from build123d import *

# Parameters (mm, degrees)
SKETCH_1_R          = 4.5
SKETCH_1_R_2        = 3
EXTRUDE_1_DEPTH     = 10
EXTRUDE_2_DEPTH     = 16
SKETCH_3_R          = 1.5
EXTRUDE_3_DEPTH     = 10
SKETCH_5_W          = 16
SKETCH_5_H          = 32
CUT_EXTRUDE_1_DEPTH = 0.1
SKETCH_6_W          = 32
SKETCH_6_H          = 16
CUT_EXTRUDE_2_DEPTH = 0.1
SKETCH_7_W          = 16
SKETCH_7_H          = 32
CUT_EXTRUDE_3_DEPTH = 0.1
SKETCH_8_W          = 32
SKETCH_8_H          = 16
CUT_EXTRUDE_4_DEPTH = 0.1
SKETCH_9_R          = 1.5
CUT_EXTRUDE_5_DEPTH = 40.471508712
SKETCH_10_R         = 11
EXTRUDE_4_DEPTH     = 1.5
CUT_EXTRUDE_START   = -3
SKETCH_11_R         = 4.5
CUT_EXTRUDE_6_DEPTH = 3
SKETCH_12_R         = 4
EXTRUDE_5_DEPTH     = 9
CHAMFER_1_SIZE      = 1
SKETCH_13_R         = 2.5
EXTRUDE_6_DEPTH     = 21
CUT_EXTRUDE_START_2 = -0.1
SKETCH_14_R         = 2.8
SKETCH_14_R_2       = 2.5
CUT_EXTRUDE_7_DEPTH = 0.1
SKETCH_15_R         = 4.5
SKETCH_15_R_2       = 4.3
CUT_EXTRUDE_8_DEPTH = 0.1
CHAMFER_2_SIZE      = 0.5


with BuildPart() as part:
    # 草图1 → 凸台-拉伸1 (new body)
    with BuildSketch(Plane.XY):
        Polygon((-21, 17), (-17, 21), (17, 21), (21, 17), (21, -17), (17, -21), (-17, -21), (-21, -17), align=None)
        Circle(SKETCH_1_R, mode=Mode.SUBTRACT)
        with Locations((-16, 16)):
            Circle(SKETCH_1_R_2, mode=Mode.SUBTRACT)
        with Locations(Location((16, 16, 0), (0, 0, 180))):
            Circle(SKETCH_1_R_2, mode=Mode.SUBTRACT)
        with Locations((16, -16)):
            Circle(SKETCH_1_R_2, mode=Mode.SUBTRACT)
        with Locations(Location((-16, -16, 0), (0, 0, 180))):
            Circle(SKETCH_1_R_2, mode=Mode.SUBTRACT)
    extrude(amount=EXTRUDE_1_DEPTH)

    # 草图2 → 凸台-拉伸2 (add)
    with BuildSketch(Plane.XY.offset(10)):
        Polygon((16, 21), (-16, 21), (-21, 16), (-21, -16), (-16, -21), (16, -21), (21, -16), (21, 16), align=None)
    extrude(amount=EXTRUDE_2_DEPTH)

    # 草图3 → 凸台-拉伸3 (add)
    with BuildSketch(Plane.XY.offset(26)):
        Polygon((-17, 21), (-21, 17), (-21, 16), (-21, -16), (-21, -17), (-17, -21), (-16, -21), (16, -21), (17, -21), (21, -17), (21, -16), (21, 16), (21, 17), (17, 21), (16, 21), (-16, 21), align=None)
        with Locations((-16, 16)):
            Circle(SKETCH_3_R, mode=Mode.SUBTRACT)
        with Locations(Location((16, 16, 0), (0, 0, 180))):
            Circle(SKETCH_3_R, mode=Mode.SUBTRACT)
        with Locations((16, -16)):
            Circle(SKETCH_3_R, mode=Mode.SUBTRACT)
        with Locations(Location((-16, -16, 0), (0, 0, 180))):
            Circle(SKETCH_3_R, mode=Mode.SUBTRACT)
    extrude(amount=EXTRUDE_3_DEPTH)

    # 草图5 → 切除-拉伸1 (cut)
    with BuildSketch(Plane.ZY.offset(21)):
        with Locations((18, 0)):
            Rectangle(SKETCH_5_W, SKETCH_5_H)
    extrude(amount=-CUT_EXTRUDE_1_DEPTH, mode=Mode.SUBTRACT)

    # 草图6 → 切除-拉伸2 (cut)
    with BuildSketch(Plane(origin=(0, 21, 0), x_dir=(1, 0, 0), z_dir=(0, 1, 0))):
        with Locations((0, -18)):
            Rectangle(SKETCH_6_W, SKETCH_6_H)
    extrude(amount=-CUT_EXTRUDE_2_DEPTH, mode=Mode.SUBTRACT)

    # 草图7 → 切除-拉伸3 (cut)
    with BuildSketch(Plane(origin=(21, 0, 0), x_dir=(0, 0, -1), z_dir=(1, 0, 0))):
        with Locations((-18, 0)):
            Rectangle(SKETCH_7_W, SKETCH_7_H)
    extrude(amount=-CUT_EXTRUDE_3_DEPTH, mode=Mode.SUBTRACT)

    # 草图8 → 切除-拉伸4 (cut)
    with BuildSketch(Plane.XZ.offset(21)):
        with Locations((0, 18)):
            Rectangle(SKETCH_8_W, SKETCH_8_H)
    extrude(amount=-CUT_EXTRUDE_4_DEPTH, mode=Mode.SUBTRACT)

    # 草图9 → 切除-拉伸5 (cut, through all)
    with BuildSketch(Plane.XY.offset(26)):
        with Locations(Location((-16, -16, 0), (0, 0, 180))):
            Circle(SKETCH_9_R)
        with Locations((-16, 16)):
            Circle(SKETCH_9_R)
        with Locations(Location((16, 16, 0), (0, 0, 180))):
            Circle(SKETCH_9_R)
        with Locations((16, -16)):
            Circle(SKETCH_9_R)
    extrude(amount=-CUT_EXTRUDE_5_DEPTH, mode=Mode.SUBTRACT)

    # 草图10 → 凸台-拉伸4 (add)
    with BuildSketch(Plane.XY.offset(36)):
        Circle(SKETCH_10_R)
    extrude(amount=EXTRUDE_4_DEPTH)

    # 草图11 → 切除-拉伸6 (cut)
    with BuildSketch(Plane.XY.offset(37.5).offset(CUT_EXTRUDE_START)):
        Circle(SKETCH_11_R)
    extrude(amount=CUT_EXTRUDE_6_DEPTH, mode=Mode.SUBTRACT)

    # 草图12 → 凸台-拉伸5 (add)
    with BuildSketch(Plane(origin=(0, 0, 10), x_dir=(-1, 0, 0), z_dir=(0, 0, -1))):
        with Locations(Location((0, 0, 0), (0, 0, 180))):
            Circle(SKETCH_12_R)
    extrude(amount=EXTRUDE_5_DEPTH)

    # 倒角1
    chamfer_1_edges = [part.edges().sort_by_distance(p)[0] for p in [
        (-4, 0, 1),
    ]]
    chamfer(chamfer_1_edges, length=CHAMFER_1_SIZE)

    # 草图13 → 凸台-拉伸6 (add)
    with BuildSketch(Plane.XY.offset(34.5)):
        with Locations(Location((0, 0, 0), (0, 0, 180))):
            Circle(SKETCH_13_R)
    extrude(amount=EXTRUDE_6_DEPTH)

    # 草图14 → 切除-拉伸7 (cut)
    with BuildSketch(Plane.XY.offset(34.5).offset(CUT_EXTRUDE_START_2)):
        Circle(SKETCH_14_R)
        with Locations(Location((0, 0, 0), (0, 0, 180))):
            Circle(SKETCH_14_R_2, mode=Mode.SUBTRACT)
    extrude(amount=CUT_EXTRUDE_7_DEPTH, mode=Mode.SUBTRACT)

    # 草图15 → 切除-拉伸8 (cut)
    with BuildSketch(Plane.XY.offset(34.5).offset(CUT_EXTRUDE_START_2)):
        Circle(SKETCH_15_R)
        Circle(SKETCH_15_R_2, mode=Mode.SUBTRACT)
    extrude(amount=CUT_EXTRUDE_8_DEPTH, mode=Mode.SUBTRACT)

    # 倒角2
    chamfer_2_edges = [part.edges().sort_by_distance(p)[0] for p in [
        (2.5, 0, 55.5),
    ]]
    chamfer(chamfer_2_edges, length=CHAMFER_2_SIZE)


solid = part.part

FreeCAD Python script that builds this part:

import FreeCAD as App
import Part
import Sketcher


def edges_at(feature, points):
    """Names of the edges that pass closest to the given points."""
    edges = feature.Shape.Edges
    near = lambda p: min(range(len(edges)), key=lambda i: edges[i].distToShape(Part.Vertex(*p))[0])
    return sorted({f"Edge{near(p) + 1}" for p in points})

doc = App.newDocument("Part")
params = doc.addObject("Spreadsheet::Sheet", "Params")
for row, (alias, value) in enumerate([
    ("sketch1_diameter", "6 mm"),
    ("sketch1_diameter2", "9 mm"),
    ("sketch1_width", "34 mm"),
    ("pad1_length", "10 mm"),
    ("sketch2_width", "32 mm"),
    ("pad2_length", "16 mm"),
    ("sketch3_diameter", "3 mm"),
    ("sketch3_width", "34 mm"),
    ("pad3_length", "10 mm"),
    ("sketch4_width", "32 mm"),
    ("sketch4_height", "16 mm"),
    ("pocket1_length", "0.1 mm"),
    ("sketch5_width", "32 mm"),
    ("sketch5_height", "16 mm"),
    ("pocket2_length", "0.1 mm"),
    ("sketch6_width", "32 mm"),
    ("sketch6_height", "16 mm"),
    ("pocket3_length", "0.1 mm"),
    ("sketch7_width", "32 mm"),
    ("sketch7_height", "16 mm"),
    ("pocket4_length", "0.1 mm"),
    ("sketch8_diameter", "3 mm"),
    ("sketch9_diameter", "22 mm"),
    ("pad4_length", "1.5 mm"),
    ("sketch10_diameter", "9 mm"),
    ("pocket6_length", "3 mm"),
    ("sketch11_diameter", "8 mm"),
    ("pad5_length", "9 mm"),
    ("chamfer_size", "1 mm"),
    ("sketch12_diameter", "5 mm"),
    ("pad6_length", "21 mm"),
    ("sketch13_diameter", "5 mm"),
    ("sketch13_diameter2", "5.6 mm"),
    ("pocket7_length", "0.1 mm"),
    ("sketch14_diameter", "9 mm"),
    ("sketch14_diameter2", "8.6 mm"),
    ("pocket8_length", "0.1 mm"),
    ("chamfer2_size", "0.5 mm"),
], start=1):
    params.set(f"A{row}", alias)
    params.set(f"B{row}", "=" + value)
    params.setAlias(f"B{row}", alias)

body = doc.addObject("PartDesign::Body", "Body")

# Sketch on XY plane
sketch1 = body.newObject("Sketcher::SketchObject", "Sketch")
sketch1.AttachmentSupport = (doc.getObject("XY_Plane"), [""])
sketch1.MapMode = "FlatFace"
sketch1.addGeometry([
    Part.LineSegment(App.Vector(-17, 21, 0), App.Vector(-21, 17, 0)),  # 0
    Part.LineSegment(App.Vector(-21, 17, 0), App.Vector(-21, -17, 0)),  # 1
    Part.LineSegment(App.Vector(-21, -17, 0), App.Vector(-17, -21, 0)),  # 2
    Part.LineSegment(App.Vector(-17, -21, 0), App.Vector(17, -21, 0)),  # 3
    Part.LineSegment(App.Vector(17, -21, 0), App.Vector(21, -17, 0)),  # 4
    Part.LineSegment(App.Vector(21, -17, 0), App.Vector(21, 17, 0)),  # 5
    Part.LineSegment(App.Vector(21, 17, 0), App.Vector(17, 21, 0)),  # 6
    Part.LineSegment(App.Vector(17, 21, 0), App.Vector(-17, 21, 0)),  # 7
    Part.Circle(App.Vector(16, -16, 0), App.Vector(0, 0, 1), 3),  # 8
    Part.Circle(App.Vector(-16, -16, 0), App.Vector(0, 0, 1), 3),  # 9
    Part.Circle(App.Vector(16, 16, 0), App.Vector(0, 0, 1), 3),  # 10
    Part.Circle(App.Vector(0, 0, 0), App.Vector(0, 0, 1), 4.5),  # 11
    Part.Circle(App.Vector(-16, 16, 0), App.Vector(0, 0, 1), 3),  # 12
], False)
sketch1.addConstraint([
    Sketcher.Constraint("Coincident", 0, 2, 1, 1),
    Sketcher.Constraint("Coincident", 1, 2, 2, 1),
    Sketcher.Constraint("Coincident", 2, 2, 3, 1),
    Sketcher.Constraint("Coincident", 3, 2, 4, 1),
    Sketcher.Constraint("Coincident", 4, 2, 5, 1),
    Sketcher.Constraint("Coincident", 5, 2, 6, 1),
    Sketcher.Constraint("Coincident", 6, 2, 7, 1),
    Sketcher.Constraint("Coincident", 7, 2, 0, 1),
    Sketcher.Constraint("Vertical", 1),
    Sketcher.Constraint("Horizontal", 3),
    Sketcher.Constraint("Vertical", 5),
    Sketcher.Constraint("Horizontal", 7),
    Sketcher.Constraint("Coincident", 11, 3, -1, 1),
    Sketcher.Constraint("Equal", 8, 9),
    Sketcher.Constraint("Equal", 9, 10),
    Sketcher.Constraint("Equal", 10, 12),
    Sketcher.Constraint("Symmetric", 9, 3, 10, 3, -1, 1),
    Sketcher.Constraint("Symmetric", 8, 3, 12, 3, -1, 1),
    Sketcher.Constraint("Symmetric", 0, 2, 4, 2, -1, 1),
    Sketcher.Constraint("Symmetric", 2, 2, 6, 2, -1, 1),
    Sketcher.Constraint("Symmetric", 8, 3, 9, 3, -2),
    Sketcher.Constraint("Perpendicular", 0, 2),
    Sketcher.Constraint("Perpendicular", 2, 4),
    Sketcher.Constraint("Perpendicular", 4, 6),
    Sketcher.Constraint("Horizontal", 1, 2, 4, 2),
    Sketcher.Constraint("Vertical", 3, 2, 6, 2),
    Sketcher.Constraint("Equal", 7, 1),
    Sketcher.Constraint("Diameter", 8, 6.0),
    Sketcher.Constraint("Diameter", 11, 9.0),
    Sketcher.Constraint("DistanceX", 3, 1, 3, 2, 34.0),
    Sketcher.Constraint("DistanceX", -1, 1, 8, 3, 16.0),
    Sketcher.Constraint("DistanceY", 8, 3, -1, 1, 16.0),
    Sketcher.Constraint("DistanceX", 0, 2, -1, 1, 21.0),
])
sketch1.setExpression("Constraints[27]", "Params.sketch1_diameter")
sketch1.setExpression("Constraints[28]", "Params.sketch1_diameter2")
sketch1.setExpression("Constraints[29]", "Params.sketch1_width")
pad1 = body.newObject("PartDesign::Pad", "Pad")
pad1.Profile = sketch1
pad1.setExpression("Length", "Params.pad1_length")

# Sketch on XY plane
sketch2 = body.newObject("Sketcher::SketchObject", "Sketch001")
sketch2.AttachmentSupport = (doc.getObject("XY_Plane"), [""])
sketch2.MapMode = "FlatFace"
sketch2.AttachmentOffset = App.Placement(App.Vector(0, 0, 10), App.Rotation())
sketch2.addGeometry([
    Part.LineSegment(App.Vector(16, 21, 0), App.Vector(-16, 21, 0)),  # 0
    Part.LineSegment(App.Vector(-16, 21, 0), App.Vector(-21, 16, 0)),  # 1
    Part.LineSegment(App.Vector(-21, 16, 0), App.Vector(-21, -16, 0)),  # 2
    Part.LineSegment(App.Vector(-21, -16, 0), App.Vector(-16, -21, 0)),  # 3
    Part.LineSegment(App.Vector(-16, -21, 0), App.Vector(16, -21, 0)),  # 4
    Part.LineSegment(App.Vector(16, -21, 0), App.Vector(21, -16, 0)),  # 5
    Part.LineSegment(App.Vector(21, -16, 0), App.Vector(21, 16, 0)),  # 6
    Part.LineSegment(App.Vector(21, 16, 0), App.Vector(16, 21, 0)),  # 7
], False)
sketch2.addConstraint([
    Sketcher.Constraint("Coincident", 0, 2, 1, 1),
    Sketcher.Constraint("Coincident", 1, 2, 2, 1),
    Sketcher.Constraint("Coincident", 2, 2, 3, 1),
    Sketcher.Constraint("Coincident", 3, 2, 4, 1),
    Sketcher.Constraint("Coincident", 4, 2, 5, 1),
    Sketcher.Constraint("Coincident", 5, 2, 6, 1),
    Sketcher.Constraint("Coincident", 6, 2, 7, 1),
    Sketcher.Constraint("Coincident", 7, 2, 0, 1),
    Sketcher.Constraint("Horizontal", 0),
    Sketcher.Constraint("Vertical", 2),
    Sketcher.Constraint("Horizontal", 4),
    Sketcher.Constraint("Vertical", 6),
    Sketcher.Constraint("Symmetric", 0, 2, 4, 2, -1, 1),
    Sketcher.Constraint("Symmetric", 1, 2, 5, 2, -1, 1),
    Sketcher.Constraint("Perpendicular", 1, 3),
    Sketcher.Constraint("Perpendicular", 5, 7),
    Sketcher.Constraint("Horizontal", 2, 2, 5, 2),
    Sketcher.Constraint("Horizontal", 1, 2, 6, 2),
    Sketcher.Constraint("Vertical", 0, 2, 3, 2),
    Sketcher.Constraint("Equal", 4, 2),
    Sketcher.Constraint("DistanceX", 0, 2, 0, 1, 32.0),
    Sketcher.Constraint("DistanceY", -1, 1, 0, 2, 21.0),
])
sketch2.setExpression("Constraints[20]", "Params.sketch2_width")
pad2 = body.newObject("PartDesign::Pad", "Pad001")
pad2.Profile = sketch2
pad2.setExpression("Length", "Params.pad2_length")

# Sketch on XY plane
sketch3 = body.newObject("Sketcher::SketchObject", "Sketch002")
sketch3.AttachmentSupport = (doc.getObject("XY_Plane"), [""])
sketch3.MapMode = "FlatFace"
sketch3.AttachmentOffset = App.Placement(App.Vector(0, 0, 26), App.Rotation())
sketch3.addGeometry([
    Part.LineSegment(App.Vector(-17, 21, 0), App.Vector(-21, 17, 0)),  # 0
    Part.LineSegment(App.Vector(-21, 17, 0), App.Vector(-21, -17, 0)),  # 1
    Part.LineSegment(App.Vector(-21, -17, 0), App.Vector(-17, -21, 0)),  # 2
    Part.LineSegment(App.Vector(-17, -21, 0), App.Vector(17, -21, 0)),  # 3
    Part.LineSegment(App.Vector(17, -21, 0), App.Vector(21, -17, 0)),  # 4
    Part.LineSegment(App.Vector(21, -17, 0), App.Vector(21, 17, 0)),  # 5
    Part.LineSegment(App.Vector(21, 17, 0), App.Vector(17, 21, 0)),  # 6
    Part.LineSegment(App.Vector(17, 21, 0), App.Vector(-17, 21, 0)),  # 7
    Part.Circle(App.Vector(-16, -16, 0), App.Vector(0, 0, 1), 1.5),  # 8
    Part.Circle(App.Vector(16, -16, 0), App.Vector(0, 0, 1), 1.5),  # 9
    Part.Circle(App.Vector(-16, 16, 0), App.Vector(0, 0, 1), 1.5),  # 10
    Part.Circle(App.Vector(16, 16, 0), App.Vector(0, 0, 1), 1.5),  # 11
], False)
sketch3.addConstraint([
    Sketcher.Constraint("Coincident", 0, 2, 1, 1),
    Sketcher.Constraint("Coincident", 1, 2, 2, 1),
    Sketcher.Constraint("Coincident", 2, 2, 3, 1),
    Sketcher.Constraint("Coincident", 3, 2, 4, 1),
    Sketcher.Constraint("Coincident", 4, 2, 5, 1),
    Sketcher.Constraint("Coincident", 5, 2, 6, 1),
    Sketcher.Constraint("Coincident", 6, 2, 7, 1),
    Sketcher.Constraint("Coincident", 7, 2, 0, 1),
    Sketcher.Constraint("Vertical", 1),
    Sketcher.Constraint("Horizontal", 3),
    Sketcher.Constraint("Vertical", 5),
    Sketcher.Constraint("Horizontal", 7),
    Sketcher.Constraint("Equal", 8, 9),
    Sketcher.Constraint("Equal", 9, 10),
    Sketcher.Constraint("Equal", 10, 11),
    Sketcher.Constraint("Symmetric", 9, 3, 10, 3, -1, 1),
    Sketcher.Constraint("Symmetric", 8, 3, 11, 3, -1, 1),
    Sketcher.Constraint("Symmetric", 0, 2, 4, 2, -1, 1),
    Sketcher.Constraint("Symmetric", 2, 2, 6, 2, -1, 1),
    Sketcher.Constraint("Symmetric", 8, 3, 9, 3, -2),
    Sketcher.Constraint("Perpendicular", 0, 2),
    Sketcher.Constraint("Perpendicular", 2, 4),
    Sketcher.Constraint("Perpendicular", 4, 6),
    Sketcher.Constraint("Horizontal", 1, 2, 4, 2),
    Sketcher.Constraint("Vertical", 3, 2, 6, 2),
    Sketcher.Constraint("Equal", 7, 1),
    Sketcher.Constraint("Diameter", 8, 3.0),
    Sketcher.Constraint("DistanceX", 3, 1, 3, 2, 34.0),
    Sketcher.Constraint("DistanceX", 8, 3, -1, 1, 16.0),
    Sketcher.Constraint("DistanceY", 8, 3, -1, 1, 16.0),
    Sketcher.Constraint("DistanceX", 0, 2, -1, 1, 21.0),
])
sketch3.setExpression("Constraints[26]", "Params.sketch3_diameter")
sketch3.setExpression("Constraints[27]", "Params.sketch3_width")
pad3 = body.newObject("PartDesign::Pad", "Pad002")
pad3.Profile = sketch3
pad3.setExpression("Length", "Params.pad3_length")

# Sketch on YZ plane
sketch4 = body.newObject("Sketcher::SketchObject", "Sketch003")
sketch4.AttachmentSupport = (doc.getObject("YZ_Plane"), [""])
sketch4.MapMode = "FlatFace"
sketch4.AttachmentOffset = App.Placement(App.Vector(0, 0, -21), App.Rotation())
sketch4.addGeometry([
    Part.LineSegment(App.Vector(16, 10, 0), App.Vector(-16, 10, 0)),
    Part.LineSegment(App.Vector(-16, 10, 0), App.Vector(-16, 26, 0)),
    Part.LineSegment(App.Vector(-16, 26, 0), App.Vector(16, 26, 0)),
    Part.LineSegment(App.Vector(16, 26, 0), App.Vector(16, 10, 0)),
], False)
sketch4.addConstraint([
    Sketcher.Constraint("Coincident", 0, 2, 1, 1),
    Sketcher.Constraint("Coincident", 1, 2, 2, 1),
    Sketcher.Constraint("Coincident", 2, 2, 3, 1),
    Sketcher.Constraint("Coincident", 3, 2, 0, 1),
    Sketcher.Constraint("Horizontal", 0),
    Sketcher.Constraint("Vertical", 1),
    Sketcher.Constraint("Horizontal", 2),
    Sketcher.Constraint("Vertical", 3),
    Sketcher.Constraint("DistanceX", 0, 2, 0, 1, 32.0),
    Sketcher.Constraint("DistanceY", 1, 1, 1, 2, 16.0),
    Sketcher.Constraint("DistanceX", 0, 2, -1, 1, 16.0),
    Sketcher.Constraint("DistanceY", -1, 1, 0, 2, 10.0),
])
sketch4.setExpression("Constraints[8]", "Params.sketch4_width")
sketch4.setExpression("Constraints[9]", "Params.sketch4_height")
pocket1 = body.newObject("PartDesign::Pocket", "Pocket")
pocket1.Profile = sketch4
pocket1.setExpression("Length", "Params.pocket1_length")
pocket1.Reversed = True

# Sketch on XZ plane
sketch5 = body.newObject("Sketcher::SketchObject", "Sketch004")
sketch5.AttachmentSupport = (doc.getObject("XZ_Plane"), [""])
sketch5.MapMode = "FlatFace"
sketch5.AttachmentOffset = App.Placement(App.Vector(0, 0, -21), App.Rotation())
sketch5.addGeometry([
    Part.LineSegment(App.Vector(-16, 10, 0), App.Vector(-16, 26, 0)),
    Part.LineSegment(App.Vector(-16, 26, 0), App.Vector(16, 26, 0)),
    Part.LineSegment(App.Vector(16, 26, 0), App.Vector(16, 10, 0)),
    Part.LineSegment(App.Vector(16, 10, 0), App.Vector(-16, 10, 0)),
], False)
sketch5.addConstraint([
    Sketcher.Constraint("Coincident", 0, 2, 1, 1),
    Sketcher.Constraint("Coincident", 1, 2, 2, 1),
    Sketcher.Constraint("Coincident", 2, 2, 3, 1),
    Sketcher.Constraint("Coincident", 3, 2, 0, 1),
    Sketcher.Constraint("Vertical", 0),
    Sketcher.Constraint("Horizontal", 1),
    Sketcher.Constraint("Vertical", 2),
    Sketcher.Constraint("Horizontal", 3),
    Sketcher.Constraint("DistanceX", 1, 1, 1, 2, 32.0),
    Sketcher.Constraint("DistanceY", 0, 1, 0, 2, 16.0),
    Sketcher.Constraint("DistanceX", 0, 2, -1, 1, 16.0),
    Sketcher.Constraint("DistanceY", -1, 1, 0, 2, 26.0),
])
sketch5.setExpression("Constraints[8]", "Params.sketch5_width")
sketch5.setExpression("Constraints[9]", "Params.sketch5_height")
pocket2 = body.newObject("PartDesign::Pocket", "Pocket001")
pocket2.Profile = sketch5
pocket2.setExpression("Length", "Params.pocket2_length")
pocket2.Reversed = True

# Sketch on YZ plane
sketch6 = body.newObject("Sketcher::SketchObject", "Sketch005")
sketch6.AttachmentSupport = (doc.getObject("YZ_Plane"), [""])
sketch6.MapMode = "FlatFace"
sketch6.AttachmentOffset = App.Placement(App.Vector(0, 0, 21), App.Rotation())
sketch6.addGeometry([
    Part.LineSegment(App.Vector(16, 26, 0), App.Vector(-16, 26, 0)),
    Part.LineSegment(App.Vector(-16, 26, 0), App.Vector(-16, 10, 0)),
    Part.LineSegment(App.Vector(-16, 10, 0), App.Vector(16, 10, 0)),
    Part.LineSegment(App.Vector(16, 10, 0), App.Vector(16, 26, 0)),
], False)
sketch6.addConstraint([
    Sketcher.Constraint("Coincident", 0, 2, 1, 1),
    Sketcher.Constraint("Coincident", 1, 2, 2, 1),
    Sketcher.Constraint("Coincident", 2, 2, 3, 1),
    Sketcher.Constraint("Coincident", 3, 2, 0, 1),
    Sketcher.Constraint("Horizontal", 0),
    Sketcher.Constraint("Vertical", 1),
    Sketcher.Constraint("Horizontal", 2),
    Sketcher.Constraint("Vertical", 3),
    Sketcher.Constraint("DistanceX", 0, 2, 0, 1, 32.0),
    Sketcher.Constraint("DistanceY", 1, 2, 1, 1, 16.0),
    Sketcher.Constraint("DistanceX", 0, 2, -1, 1, 16.0),
    Sketcher.Constraint("DistanceY", -1, 1, 0, 2, 26.0),
])
sketch6.setExpression("Constraints[8]", "Params.sketch6_width")
sketch6.setExpression("Constraints[9]", "Params.sketch6_height")
pocket3 = body.newObject("PartDesign::Pocket", "Pocket002")
pocket3.Profile = sketch6
pocket3.setExpression("Length", "Params.pocket3_length")

# Sketch on XZ plane
sketch7 = body.newObject("Sketcher::SketchObject", "Sketch006")
sketch7.AttachmentSupport = (doc.getObject("XZ_Plane"), [""])
sketch7.MapMode = "FlatFace"
sketch7.AttachmentOffset = App.Placement(App.Vector(0, 0, 21), App.Rotation())
sketch7.addGeometry([
    Part.LineSegment(App.Vector(-16, 26, 0), App.Vector(-16, 10, 0)),
    Part.LineSegment(App.Vector(-16, 10, 0), App.Vector(16, 10, 0)),
    Part.LineSegment(App.Vector(16, 10, 0), App.Vector(16, 26, 0)),
    Part.LineSegment(App.Vector(16, 26, 0), App.Vector(-16, 26, 0)),
], False)
sketch7.addConstraint([
    Sketcher.Constraint("Coincident", 0, 2, 1, 1),
    Sketcher.Constraint("Coincident", 1, 2, 2, 1),
    Sketcher.Constraint("Coincident", 2, 2, 3, 1),
    Sketcher.Constraint("Coincident", 3, 2, 0, 1),
    Sketcher.Constraint("Vertical", 0),
    Sketcher.Constraint("Horizontal", 1),
    Sketcher.Constraint("Vertical", 2),
    Sketcher.Constraint("Horizontal", 3),
    Sketcher.Constraint("DistanceX", 1, 1, 1, 2, 32.0),
    Sketcher.Constraint("DistanceY", 0, 2, 0, 1, 16.0),
    Sketcher.Constraint("DistanceX", 0, 2, -1, 1, 16.0),
    Sketcher.Constraint("DistanceY", -1, 1, 0, 2, 10.0),
])
sketch7.setExpression("Constraints[8]", "Params.sketch7_width")
sketch7.setExpression("Constraints[9]", "Params.sketch7_height")
pocket4 = body.newObject("PartDesign::Pocket", "Pocket003")
pocket4.Profile = sketch7
pocket4.setExpression("Length", "Params.pocket4_length")

# Sketch on XY plane
sketch8 = body.newObject("Sketcher::SketchObject", "Sketch007")
sketch8.AttachmentSupport = (doc.getObject("XY_Plane"), [""])
sketch8.MapMode = "FlatFace"
sketch8.AttachmentOffset = App.Placement(App.Vector(0, 0, 26), App.Rotation())
sketch8.addGeometry([
    Part.Circle(App.Vector(-16, -16, 0), App.Vector(0, 0, 1), 1.5),
    Part.Circle(App.Vector(-16, 16, 0), App.Vector(0, 0, 1), 1.5),
    Part.Circle(App.Vector(16, 16, 0), App.Vector(0, 0, 1), 1.5),
    Part.Circle(App.Vector(16, -16, 0), App.Vector(0, 0, 1), 1.5),
], False)
sketch8.addConstraint([
    Sketcher.Constraint("Equal", 0, 1),
    Sketcher.Constraint("Equal", 1, 2),
    Sketcher.Constraint("Equal", 2, 3),
    Sketcher.Constraint("Symmetric", 0, 3, 2, 3, -1, 1),
    Sketcher.Constraint("Symmetric", 1, 3, 3, 3, -1, 1),
    Sketcher.Constraint("Symmetric", 1, 3, 2, 3, -2),
    Sketcher.Constraint("Diameter", 0, 3.0),
    Sketcher.Constraint("DistanceX", 0, 3, -1, 1, 16.0),
    Sketcher.Constraint("DistanceY", 0, 3, -1, 1, 16.0),
])
sketch8.setExpression("Constraints[6]", "Params.sketch8_diameter")
pocket5 = body.newObject("PartDesign::Pocket", "Pocket004")
pocket5.Profile = sketch8
pocket5.Type = "ThroughAll"

# Sketch on XY plane
sketch9 = body.newObject("Sketcher::SketchObject", "Sketch008")
sketch9.AttachmentSupport = (doc.getObject("XY_Plane"), [""])
sketch9.MapMode = "FlatFace"
sketch9.AttachmentOffset = App.Placement(App.Vector(0, 0, 36), App.Rotation())
sketch9.addGeometry(Part.Circle(App.Vector(0, 0, 0), App.Vector(0, 0, 1), 11), False)
sketch9.addConstraint([
    Sketcher.Constraint("Coincident", 0, 3, -1, 1),
    Sketcher.Constraint("Diameter", 0, 22.0),
])
sketch9.setExpression("Constraints[1]", "Params.sketch9_diameter")
pad4 = body.newObject("PartDesign::Pad", "Pad003")
pad4.Profile = sketch9
pad4.setExpression("Length", "Params.pad4_length")

# Sketch on XY plane
sketch10 = body.newObject("Sketcher::SketchObject", "Sketch009")
sketch10.AttachmentSupport = (doc.getObject("XY_Plane"), [""])
sketch10.MapMode = "FlatFace"
sketch10.AttachmentOffset = App.Placement(App.Vector(0, 0, 34.5), App.Rotation())
sketch10.addGeometry(Part.Circle(App.Vector(0, 0, 0), App.Vector(0, 0, 1), 4.5), False)
sketch10.addConstraint([
    Sketcher.Constraint("Coincident", 0, 3, -1, 1),
    Sketcher.Constraint("Diameter", 0, 9.0),
])
sketch10.setExpression("Constraints[1]", "Params.sketch10_diameter")
pocket6 = body.newObject("PartDesign::Pocket", "Pocket005")
pocket6.Profile = sketch10
pocket6.setExpression("Length", "Params.pocket6_length")
pocket6.Reversed = True

# Sketch on XY plane
sketch11 = body.newObject("Sketcher::SketchObject", "Sketch010")
sketch11.AttachmentSupport = (doc.getObject("XY_Plane"), [""])
sketch11.MapMode = "FlatFace"
sketch11.AttachmentOffset = App.Placement(App.Vector(0, 0, 10), App.Rotation())
sketch11.addGeometry(Part.Circle(App.Vector(0, 0, 0), App.Vector(0, 0, 1), 4), False)
sketch11.addConstraint([
    Sketcher.Constraint("Coincident", 0, 3, -1, 1),
    Sketcher.Constraint("Diameter", 0, 8.0),
])
sketch11.setExpression("Constraints[1]", "Params.sketch11_diameter")
pad5 = body.newObject("PartDesign::Pad", "Pad004")
pad5.Profile = sketch11
pad5.setExpression("Length", "Params.pad5_length")
pad5.Reversed = True
doc.recompute()

chamfer = body.newObject("PartDesign::Chamfer", "Chamfer")
chamfer.Base = (pad5, edges_at(pad5, [(-4, 0, 1)]))
chamfer.setExpression("Size", "Params.chamfer_size")

# Sketch on XY plane
sketch12 = body.newObject("Sketcher::SketchObject", "Sketch011")
sketch12.AttachmentSupport = (doc.getObject("XY_Plane"), [""])
sketch12.MapMode = "FlatFace"
sketch12.AttachmentOffset = App.Placement(App.Vector(0, 0, 34.5), App.Rotation())
sketch12.addGeometry(Part.Circle(App.Vector(0, 0, 0), App.Vector(0, 0, 1), 2.5), False)
sketch12.addConstraint([
    Sketcher.Constraint("Coincident", 0, 3, -1, 1),
    Sketcher.Constraint("Diameter", 0, 5.0),
])
sketch12.setExpression("Constraints[1]", "Params.sketch12_diameter")
pad6 = body.newObject("PartDesign::Pad", "Pad005")
pad6.Profile = sketch12
pad6.setExpression("Length", "Params.pad6_length")

# Sketch on XY plane
sketch13 = body.newObject("Sketcher::SketchObject", "Sketch012")
sketch13.AttachmentSupport = (doc.getObject("XY_Plane"), [""])
sketch13.MapMode = "FlatFace"
sketch13.AttachmentOffset = App.Placement(App.Vector(0, 0, 34.4), App.Rotation())
sketch13.addGeometry([
    Part.Circle(App.Vector(0, 0, 0), App.Vector(0, 0, 1), 2.8),
    Part.Circle(App.Vector(0, 0, 0), App.Vector(0, 0, 1), 2.5),
], False)
sketch13.addConstraint([
    Sketcher.Constraint("Coincident", 0, 3, -1, 1),
    Sketcher.Constraint("Coincident", 1, 3, -1, 1),
    Sketcher.Constraint("Diameter", 1, 5.0),
    Sketcher.Constraint("Diameter", 0, 5.6),
])
sketch13.setExpression("Constraints[2]", "Params.sketch13_diameter")
sketch13.setExpression("Constraints[3]", "Params.sketch13_diameter2")
pocket7 = body.newObject("PartDesign::Pocket", "Pocket006")
pocket7.Profile = sketch13
pocket7.setExpression("Length", "Params.pocket7_length")
pocket7.Reversed = True

# Sketch on XY plane
sketch14 = body.newObject("Sketcher::SketchObject", "Sketch013")
sketch14.AttachmentSupport = (doc.getObject("XY_Plane"), [""])
sketch14.MapMode = "FlatFace"
sketch14.AttachmentOffset = App.Placement(App.Vector(0, 0, 34.4), App.Rotation())
sketch14.addGeometry([
    Part.Circle(App.Vector(0, 0, 0), App.Vector(0, 0, 1), 4.5),
    Part.Circle(App.Vector(0, 0, 0), App.Vector(0, 0, 1), 4.3),
], False)
sketch14.addConstraint([
    Sketcher.Constraint("Coincident", 0, 3, -1, 1),
    Sketcher.Constraint("Coincident", 1, 3, -1, 1),
    Sketcher.Constraint("Diameter", 0, 9.0),
    Sketcher.Constraint("Diameter", 1, 8.6),
])
sketch14.setExpression("Constraints[2]", "Params.sketch14_diameter")
sketch14.setExpression("Constraints[3]", "Params.sketch14_diameter2")
pocket8 = body.newObject("PartDesign::Pocket", "Pocket007")
pocket8.Profile = sketch14
pocket8.setExpression("Length", "Params.pocket8_length")
pocket8.Reversed = True
doc.recompute()

chamfer2 = body.newObject("PartDesign::Chamfer", "Chamfer001")
chamfer2.Base = (pocket8, edges_at(pocket8, [(2.5, 0, 55.5)]))
chamfer2.setExpression("Size", "Params.chamfer2_size")

doc.recompute()
